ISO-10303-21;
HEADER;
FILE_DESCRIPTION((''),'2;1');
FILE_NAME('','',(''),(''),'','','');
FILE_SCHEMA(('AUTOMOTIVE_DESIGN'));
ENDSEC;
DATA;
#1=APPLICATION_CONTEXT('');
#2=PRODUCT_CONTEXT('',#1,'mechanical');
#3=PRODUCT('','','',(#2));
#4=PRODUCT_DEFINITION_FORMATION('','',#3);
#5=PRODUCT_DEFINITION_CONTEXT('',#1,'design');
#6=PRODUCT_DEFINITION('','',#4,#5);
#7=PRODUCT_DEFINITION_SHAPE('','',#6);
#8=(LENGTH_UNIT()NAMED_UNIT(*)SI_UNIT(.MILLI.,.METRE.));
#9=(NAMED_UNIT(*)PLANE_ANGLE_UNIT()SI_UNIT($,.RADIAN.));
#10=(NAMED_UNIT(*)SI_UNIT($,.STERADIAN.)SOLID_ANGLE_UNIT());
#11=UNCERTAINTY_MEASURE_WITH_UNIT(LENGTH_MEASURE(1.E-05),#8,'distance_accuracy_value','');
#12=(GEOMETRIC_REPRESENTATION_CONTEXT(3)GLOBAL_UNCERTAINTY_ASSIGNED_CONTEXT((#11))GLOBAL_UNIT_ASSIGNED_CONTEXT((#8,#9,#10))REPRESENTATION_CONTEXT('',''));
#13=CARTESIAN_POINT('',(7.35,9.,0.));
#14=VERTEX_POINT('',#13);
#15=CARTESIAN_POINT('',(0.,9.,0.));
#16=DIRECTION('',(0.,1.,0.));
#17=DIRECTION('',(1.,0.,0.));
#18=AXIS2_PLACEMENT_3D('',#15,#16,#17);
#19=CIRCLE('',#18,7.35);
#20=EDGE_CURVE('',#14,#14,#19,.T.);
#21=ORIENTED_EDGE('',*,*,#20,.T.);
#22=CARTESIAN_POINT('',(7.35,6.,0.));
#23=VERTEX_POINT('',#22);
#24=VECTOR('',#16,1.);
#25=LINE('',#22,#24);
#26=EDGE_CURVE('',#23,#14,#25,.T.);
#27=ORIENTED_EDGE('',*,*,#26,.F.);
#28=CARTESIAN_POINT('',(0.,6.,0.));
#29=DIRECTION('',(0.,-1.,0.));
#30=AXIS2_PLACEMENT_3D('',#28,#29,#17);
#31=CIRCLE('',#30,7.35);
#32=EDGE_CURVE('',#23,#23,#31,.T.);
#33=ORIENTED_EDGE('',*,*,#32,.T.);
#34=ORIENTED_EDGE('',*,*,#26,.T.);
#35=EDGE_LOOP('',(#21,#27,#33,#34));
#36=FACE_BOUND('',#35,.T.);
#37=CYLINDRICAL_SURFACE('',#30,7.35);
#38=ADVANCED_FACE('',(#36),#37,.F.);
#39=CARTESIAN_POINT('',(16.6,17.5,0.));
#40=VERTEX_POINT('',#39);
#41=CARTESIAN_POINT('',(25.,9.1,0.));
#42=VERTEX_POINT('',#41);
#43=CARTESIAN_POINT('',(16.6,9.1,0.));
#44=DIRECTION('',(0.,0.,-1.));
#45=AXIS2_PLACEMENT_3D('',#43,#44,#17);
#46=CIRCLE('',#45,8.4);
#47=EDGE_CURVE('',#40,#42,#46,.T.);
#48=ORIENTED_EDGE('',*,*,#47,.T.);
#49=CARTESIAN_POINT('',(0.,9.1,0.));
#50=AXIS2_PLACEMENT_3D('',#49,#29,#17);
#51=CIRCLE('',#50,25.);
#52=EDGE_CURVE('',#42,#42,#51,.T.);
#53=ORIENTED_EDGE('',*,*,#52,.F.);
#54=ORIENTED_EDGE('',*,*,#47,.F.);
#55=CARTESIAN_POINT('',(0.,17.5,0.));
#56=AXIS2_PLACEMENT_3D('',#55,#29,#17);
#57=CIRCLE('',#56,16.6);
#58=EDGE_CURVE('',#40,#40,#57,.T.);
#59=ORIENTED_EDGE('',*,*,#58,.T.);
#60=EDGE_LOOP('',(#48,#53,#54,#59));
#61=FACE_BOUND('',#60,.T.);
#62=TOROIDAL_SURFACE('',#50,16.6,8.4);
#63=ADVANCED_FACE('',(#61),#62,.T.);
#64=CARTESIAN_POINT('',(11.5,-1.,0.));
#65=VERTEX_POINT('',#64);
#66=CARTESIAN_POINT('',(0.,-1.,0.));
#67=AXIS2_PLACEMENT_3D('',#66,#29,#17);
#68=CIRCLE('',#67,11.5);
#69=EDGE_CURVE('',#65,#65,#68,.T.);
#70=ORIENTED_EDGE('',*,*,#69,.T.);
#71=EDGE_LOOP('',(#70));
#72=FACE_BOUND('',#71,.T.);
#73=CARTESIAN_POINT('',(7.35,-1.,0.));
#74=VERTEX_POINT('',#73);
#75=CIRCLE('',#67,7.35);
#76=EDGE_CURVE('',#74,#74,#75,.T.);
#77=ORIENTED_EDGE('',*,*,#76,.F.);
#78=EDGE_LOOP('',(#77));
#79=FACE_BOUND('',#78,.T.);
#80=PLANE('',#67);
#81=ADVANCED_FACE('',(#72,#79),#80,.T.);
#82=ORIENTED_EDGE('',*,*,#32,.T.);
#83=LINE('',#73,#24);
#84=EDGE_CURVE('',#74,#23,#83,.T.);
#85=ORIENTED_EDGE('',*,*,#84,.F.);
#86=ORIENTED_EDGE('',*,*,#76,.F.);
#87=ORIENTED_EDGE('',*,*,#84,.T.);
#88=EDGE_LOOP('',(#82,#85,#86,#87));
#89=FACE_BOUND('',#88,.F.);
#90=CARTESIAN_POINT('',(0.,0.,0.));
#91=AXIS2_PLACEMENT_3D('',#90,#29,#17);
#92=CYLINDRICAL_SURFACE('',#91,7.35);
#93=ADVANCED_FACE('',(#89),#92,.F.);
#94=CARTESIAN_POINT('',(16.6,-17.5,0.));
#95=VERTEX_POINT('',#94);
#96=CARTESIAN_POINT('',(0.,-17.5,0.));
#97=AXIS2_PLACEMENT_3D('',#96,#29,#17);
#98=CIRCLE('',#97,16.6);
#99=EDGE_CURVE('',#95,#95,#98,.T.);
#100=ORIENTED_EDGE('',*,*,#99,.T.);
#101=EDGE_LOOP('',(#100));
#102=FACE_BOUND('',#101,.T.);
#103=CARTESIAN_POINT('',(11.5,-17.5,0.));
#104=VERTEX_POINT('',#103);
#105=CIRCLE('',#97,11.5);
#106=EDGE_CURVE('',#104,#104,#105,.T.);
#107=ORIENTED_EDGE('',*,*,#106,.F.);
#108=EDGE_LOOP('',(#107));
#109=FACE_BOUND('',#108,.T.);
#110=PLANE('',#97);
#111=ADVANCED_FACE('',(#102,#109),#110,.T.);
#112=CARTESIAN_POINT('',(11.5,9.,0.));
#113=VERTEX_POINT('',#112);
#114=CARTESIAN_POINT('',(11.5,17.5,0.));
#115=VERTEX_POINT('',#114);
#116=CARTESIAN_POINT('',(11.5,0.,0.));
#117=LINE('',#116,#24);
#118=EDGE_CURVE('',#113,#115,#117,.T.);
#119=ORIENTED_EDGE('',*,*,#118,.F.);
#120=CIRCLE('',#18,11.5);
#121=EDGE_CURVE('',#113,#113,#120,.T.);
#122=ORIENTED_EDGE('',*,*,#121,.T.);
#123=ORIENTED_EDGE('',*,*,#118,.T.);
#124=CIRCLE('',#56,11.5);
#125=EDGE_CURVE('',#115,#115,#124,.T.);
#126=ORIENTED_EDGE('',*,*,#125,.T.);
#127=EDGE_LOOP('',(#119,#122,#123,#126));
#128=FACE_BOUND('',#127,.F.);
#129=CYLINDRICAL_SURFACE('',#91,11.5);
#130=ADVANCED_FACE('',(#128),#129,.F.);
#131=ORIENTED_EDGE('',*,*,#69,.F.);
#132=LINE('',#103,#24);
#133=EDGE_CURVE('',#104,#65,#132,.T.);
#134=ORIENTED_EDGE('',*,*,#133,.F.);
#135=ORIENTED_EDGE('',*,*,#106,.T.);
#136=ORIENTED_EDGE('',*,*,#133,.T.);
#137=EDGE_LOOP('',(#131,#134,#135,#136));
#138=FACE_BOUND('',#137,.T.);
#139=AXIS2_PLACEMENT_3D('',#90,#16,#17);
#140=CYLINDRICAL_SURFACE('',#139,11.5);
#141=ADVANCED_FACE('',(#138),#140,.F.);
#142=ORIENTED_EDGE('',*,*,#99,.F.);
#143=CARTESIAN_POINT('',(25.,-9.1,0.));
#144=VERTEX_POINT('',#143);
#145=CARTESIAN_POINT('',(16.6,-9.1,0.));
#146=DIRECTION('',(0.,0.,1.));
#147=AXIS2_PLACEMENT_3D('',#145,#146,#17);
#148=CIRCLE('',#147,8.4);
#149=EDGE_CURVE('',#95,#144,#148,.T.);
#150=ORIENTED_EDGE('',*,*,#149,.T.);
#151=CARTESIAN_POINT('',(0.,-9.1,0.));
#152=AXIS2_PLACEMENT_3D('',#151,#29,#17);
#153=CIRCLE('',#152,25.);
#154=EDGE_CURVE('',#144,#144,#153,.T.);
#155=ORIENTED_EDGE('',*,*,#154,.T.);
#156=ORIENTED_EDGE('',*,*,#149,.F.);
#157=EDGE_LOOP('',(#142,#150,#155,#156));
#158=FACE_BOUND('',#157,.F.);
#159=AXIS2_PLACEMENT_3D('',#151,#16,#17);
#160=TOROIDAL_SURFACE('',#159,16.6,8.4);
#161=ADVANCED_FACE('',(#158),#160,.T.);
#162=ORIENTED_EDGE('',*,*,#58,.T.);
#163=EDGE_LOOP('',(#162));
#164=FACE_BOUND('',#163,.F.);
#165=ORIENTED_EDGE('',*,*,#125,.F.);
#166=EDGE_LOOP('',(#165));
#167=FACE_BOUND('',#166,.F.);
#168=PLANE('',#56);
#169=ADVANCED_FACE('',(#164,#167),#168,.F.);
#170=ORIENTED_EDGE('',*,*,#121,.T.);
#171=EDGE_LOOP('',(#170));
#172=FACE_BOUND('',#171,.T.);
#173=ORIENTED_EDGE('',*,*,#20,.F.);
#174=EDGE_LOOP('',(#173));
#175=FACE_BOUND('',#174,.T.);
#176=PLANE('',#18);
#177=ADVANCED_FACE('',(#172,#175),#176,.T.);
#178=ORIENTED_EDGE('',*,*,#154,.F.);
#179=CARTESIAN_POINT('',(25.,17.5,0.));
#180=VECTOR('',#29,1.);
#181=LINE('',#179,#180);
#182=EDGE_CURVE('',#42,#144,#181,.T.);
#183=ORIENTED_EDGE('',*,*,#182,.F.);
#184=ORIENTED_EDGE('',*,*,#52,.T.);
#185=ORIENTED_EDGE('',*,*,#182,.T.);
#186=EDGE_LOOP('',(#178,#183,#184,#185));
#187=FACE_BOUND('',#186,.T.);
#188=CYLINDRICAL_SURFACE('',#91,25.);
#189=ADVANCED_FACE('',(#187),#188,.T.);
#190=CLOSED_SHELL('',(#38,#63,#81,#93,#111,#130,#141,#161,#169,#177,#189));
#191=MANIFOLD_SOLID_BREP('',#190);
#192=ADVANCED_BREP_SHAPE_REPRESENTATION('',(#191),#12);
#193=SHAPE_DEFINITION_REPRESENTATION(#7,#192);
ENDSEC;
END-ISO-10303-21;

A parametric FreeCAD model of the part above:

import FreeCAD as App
import Part
import Sketcher

V = App.Vector


def edges_at(feature, points):
    """Names of the edges that pass closest to the given points."""
    edges = feature.Shape.Edges
    near = lambda p: min(range(len(edges)), key=lambda i: edges[i].distToShape(Part.Vertex(*p))[0])
    return sorted({f"Edge{near(p) + 1}" for p in points})

doc = App.newDocument("Part")
body = doc.addObject("PartDesign::Body", "Body")

# Sketch on XZ plane
sketch1 = doc.addObject("Sketcher::SketchObject", "Sketch")
body.addObject(sketch1)
sketch1.AttachmentSupport = (doc.XZ_Plane, [""])
sketch1.MapMode = "FlatFace"
sketch1.addGeometry(Part.Circle(V(0, 0, 0), V(0, 0, 1), 25), False)
sketch1.addGeometry(Part.Circle(V(0, 0, 0), V(0, 0, 1), 12), False)
sketch1.addConstraint(Sketcher.Constraint("Coincident", 0, 3, -1, 1))
sketch1.addConstraint(Sketcher.Constraint("Coincident", 1, 3, -1, 1))
sketch1.addConstraint(Sketcher.Constraint("Diameter", 0, 50.0))
sketch1.addConstraint(Sketcher.Constraint("Diameter", 1, 23.0))
pad1 = doc.addObject("PartDesign::Pad", "Pad")
body.addObject(pad1)
pad1.Profile = sketch1
pad1.Type = "TwoLengths"
pad1.Length = 17.5
pad1.Length2 = 17.5

# Sketch on XZ plane
sketch2 = doc.addObject("Sketcher::SketchObject", "Sketch001")
body.addObject(sketch2)
sketch2.AttachmentSupport = (doc.XZ_Plane, [""])
sketch2.MapMode = "FlatFace"
sketch2.addGeometry(Part.Circle(V(0, 0, 0), V(0, 0, 1), 12), False)
sketch2.addGeometry(Part.Circle(V(0, 0, 0), V(0, 0, 1), 7), False)
sketch2.addConstraint(Sketcher.Constraint("Coincident", 0, 3, -1, 1))
sketch2.addConstraint(Sketcher.Constraint("Coincident", 1, 3, -1, 1))
sketch2.addConstraint(Sketcher.Constraint("Diameter", 0, 23.0))
sketch2.addConstraint(Sketcher.Constraint("Diameter", 1, 14.7))
pad2 = doc.addObject("PartDesign::Pad", "Pad001")
body.addObject(pad2)
pad2.Profile = sketch2
pad2.Length = 6

# Sketch on XZ plane
sketch3 = doc.addObject("Sketcher::SketchObject", "Sketch002")
body.addObject(sketch3)
sketch3.AttachmentSupport = (doc.XZ_Plane, [""])
sketch3.MapMode = "FlatFace"
sketch3.addGeometry(Part.Circle(V(0, 0, 0), V(0, 0, 1), 12), False)
sketch3.addGeometry(Part.Circle(V(0, 0, 0), V(0, 0, 1), 7), False)
sketch3.addConstraint(Sketcher.Constraint("Coincident", 0, 3, -1, 1))
sketch3.addConstraint(Sketcher.Constraint("Coincident", 1, 3, -1, 1))
sketch3.addConstraint(Sketcher.Constraint("Diameter", 0, 23.0))
sketch3.addConstraint(Sketcher.Constraint("Diameter", 1, 14.7))
pad3 = doc.addObject("PartDesign::Pad", "Pad002")
body.addObject(pad3)
pad3.Profile = sketch3
pad3.Length = 6
pad3.Reversed = True
doc.recompute()

fillet = doc.addObject("PartDesign::Fillet", "Fillet")
body.addObject(fillet)
fillet.Base = (pad3, edges_at(pad3, [(-25, -17.5, 0), (-25, 17.5, 0)]))
fillet.Radius = 8.4

# Sketch on XZ plane
sketch4 = doc.addObject("Sketcher::SketchObject", "Sketch003")
body.addObject(sketch4)
sketch4.AttachmentSupport = (doc.XZ_Plane, [""])
sketch4.MapMode = "FlatFace"
sketch4.AttachmentOffset = App.Placement(V(0, 0, 6), App.Rotation())
sketch4.addGeometry(Part.Circle(V(0, 0, 0), V(0, 0, 1), 12), False)
sketch4.addGeometry(Part.Circle(V(0, 0, 0), V(0, 0, 1), 7), False)
sketch4.addConstraint(Sketcher.Constraint("Coincident", 0, 3, -1, 1))
sketch4.addConstraint(Sketcher.Constraint("Coincident", 1, 3, -1, 1))
sketch4.addConstraint(Sketcher.Constraint("Diameter", 0, 23.0))
sketch4.addConstraint(Sketcher.Constraint("Diameter", 1, 14.7))
pocket1 = doc.addObject("PartDesign::Pocket", "Pocket")
body.addObject(pocket1)
pocket1.Profile = sketch4
pocket1.Length = 5

# Sketch on XZ plane
sketch5 = doc.addObject("Sketcher::SketchObject", "Sketch004")
body.addObject(sketch5)
sketch5.AttachmentSupport = (doc.XZ_Plane, [""])
sketch5.MapMode = "FlatFace"
sketch5.AttachmentOffset = App.Placement(V(0, 0, -6), App.Rotation())
sketch5.addGeometry(Part.Circle(V(0, 0, 0), V(0, 0, 1), 12), False)
sketch5.addGeometry(Part.Circle(V(0, 0, 0), V(0, 0, 1), 7), False)
sketch5.addConstraint(Sketcher.Constraint("Coincident", 0, 3, -1, 1))
sketch5.addConstraint(Sketcher.Constraint("Coincident", 1, 3, -1, 1))
sketch5.addConstraint(Sketcher.Constraint("Diameter", 0, 23.0))
sketch5.addConstraint(Sketcher.Constraint("Diameter", 1, 14.7))
pad4 = doc.addObject("PartDesign::Pad", "Pad003")
body.addObject(pad4)
pad4.Profile = sketch5
pad4.Length = 3
pad4.Reversed = True

doc.recompute()
